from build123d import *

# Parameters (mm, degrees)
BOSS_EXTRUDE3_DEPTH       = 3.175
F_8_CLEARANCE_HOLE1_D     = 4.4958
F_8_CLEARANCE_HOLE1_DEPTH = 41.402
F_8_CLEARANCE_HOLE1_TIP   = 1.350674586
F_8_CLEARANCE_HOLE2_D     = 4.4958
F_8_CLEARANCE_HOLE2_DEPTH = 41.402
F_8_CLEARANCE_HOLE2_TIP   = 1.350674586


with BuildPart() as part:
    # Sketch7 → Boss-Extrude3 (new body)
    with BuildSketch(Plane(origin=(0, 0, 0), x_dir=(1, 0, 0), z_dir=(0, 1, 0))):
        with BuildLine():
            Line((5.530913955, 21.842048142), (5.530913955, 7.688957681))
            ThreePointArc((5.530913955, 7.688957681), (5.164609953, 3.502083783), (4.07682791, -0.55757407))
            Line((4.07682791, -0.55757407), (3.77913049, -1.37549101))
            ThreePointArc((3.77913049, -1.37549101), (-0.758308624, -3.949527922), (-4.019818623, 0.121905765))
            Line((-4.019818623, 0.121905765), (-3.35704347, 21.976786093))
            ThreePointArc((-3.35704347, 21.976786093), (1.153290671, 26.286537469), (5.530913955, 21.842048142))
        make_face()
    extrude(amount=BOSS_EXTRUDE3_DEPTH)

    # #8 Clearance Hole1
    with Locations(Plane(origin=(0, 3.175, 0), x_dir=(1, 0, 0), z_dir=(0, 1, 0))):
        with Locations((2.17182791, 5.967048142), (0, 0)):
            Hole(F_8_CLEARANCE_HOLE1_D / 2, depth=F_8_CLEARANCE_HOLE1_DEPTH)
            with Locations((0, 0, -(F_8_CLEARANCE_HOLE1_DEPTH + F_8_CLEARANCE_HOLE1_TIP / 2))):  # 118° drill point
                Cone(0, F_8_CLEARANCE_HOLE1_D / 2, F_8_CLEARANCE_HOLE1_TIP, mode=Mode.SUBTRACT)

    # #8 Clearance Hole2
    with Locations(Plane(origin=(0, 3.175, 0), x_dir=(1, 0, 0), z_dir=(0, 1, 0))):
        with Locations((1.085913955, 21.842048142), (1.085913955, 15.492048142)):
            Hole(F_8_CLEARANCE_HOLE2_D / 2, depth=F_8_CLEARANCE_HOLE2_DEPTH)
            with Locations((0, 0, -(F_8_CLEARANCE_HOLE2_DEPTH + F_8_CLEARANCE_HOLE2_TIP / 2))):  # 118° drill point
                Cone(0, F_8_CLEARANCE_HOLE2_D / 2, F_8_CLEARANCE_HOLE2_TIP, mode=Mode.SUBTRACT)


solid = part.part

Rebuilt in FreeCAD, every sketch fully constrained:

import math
import FreeCAD as App
import Part
import Sketcher

V = App.Vector
Q = App.Units.Quantity

doc = App.newDocument("Part")
body = doc.addObject("PartDesign::Body", "Body")

sketch1 = doc.addObject("Sketcher::SketchObject", "Sketch")
body.addObject(sketch1)
sketch1.AttachmentSupport = (doc.XZ_Plane, [""])
sketch1.MapMode = "FlatFace"
sketch1.addGeometry(Part.LineSegment(V(5.530914, -7.688958, 0), V(5.530914, -21.842048, 0)), False)
sketch1.addGeometry(Part.ArcOfCircle(Part.Circle(V(1.085914, -21.842048, 0), V(0, 0, 1), 4.445), math.radians(-178.26297), math.radians(0)), False)
sketch1.addGeometry(Part.LineSegment(V(-3.357043, -21.976786, 0), V(-4.019819, -0.121906, 0)), False)
sketch1.addGeometry(Part.ArcOfCircle(Part.Circle(V(0, 0, 0), V(0, 0, 1), 4.021667), math.radians(20), math.radians(181.73703)), False)
sketch1.addGeometry(Part.LineSegment(V(3.77913, 1.375491, 0), V(4.076828, 0.557574, 0)), False)
sketch1.addGeometry(Part.ArcOfCircle(Part.Circle(V(-18.580332, -7.688958, 0), V(0, 0, 1), 24.111246), math.radians(0), math.radians(20)), False)
sketch1.addConstraint(Sketcher.Constraint("Tangent", 0, 2, 1, 2))
sketch1.addConstraint(Sketcher.Constraint("Tangent", 1, 1, 2, 1))
sketch1.addConstraint(Sketcher.Constraint("Tangent", 2, 2, 3, 2))
sketch1.addConstraint(Sketcher.Constraint("Tangent", 3, 1, 4, 1))
sketch1.addConstraint(Sketcher.Constraint("Tangent", 4, 2, 5, 2))
sketch1.addConstraint(Sketcher.Constraint("Tangent", 5, 1, 0, 1))
sketch1.addConstraint(Sketcher.Constraint("Vertical", 0))
sketch1.addConstraint(Sketcher.Constraint("Coincident", 3, 3, -1, 1))
sketch1.addConstraint(Sketcher.Constraint("Angle", 4, Q("-70 deg")))
sketch1.addConstraint(Sketcher.Constraint("Radius", 1, Q("0.175 in")))
sketch1.addConstraint(Sketcher.Constraint("Radius", 3, Q("4.021667 mm")))
sketch1.addConstraint(Sketcher.Constraint("Radius", 5, Q("24.111246 mm")))
sketch1.addConstraint(Sketcher.Constraint("DistanceY", 0, 2, 0, 1, Q("14.15309 mm")))
sketch1.addConstraint(Sketcher.Constraint("Distance", 4, Q("0.870409 mm")))
pad1 = doc.addObject("PartDesign::Pad", "Pad")
body.addObject(pad1)
pad1.Profile = sketch1
pad1.Length = Q("0.125 in")
pad1.Reversed = True

sketch2 = doc.addObject("Sketcher::SketchObject", "Sketch001")
body.addObject(sketch2)
sketch2.AttachmentSupport = (doc.XZ_Plane, [""])
sketch2.MapMode = "FlatFace"
sketch2.AttachmentOffset = App.Placement(V(0, 0, -0.125 * 25.4), App.Rotation())
sketch2.addGeometry(Part.Circle(V(2.171828, -5.967048, 0), V(0, 0, 1), 2.2479), False)
sketch2.addGeometry(Part.Circle(V(0, 0, 0), V(0, 0, 1), 2.2479), False)
sketch2.addConstraint(Sketcher.Constraint("Coincident", 1, 3, -1, 1))
sketch2.addConstraint(Sketcher.Constraint("Equal", 0, 1))
sketch2.addConstraint(Sketcher.Constraint("Diameter", 0, Q("0.177 in")))
sketch2.addConstraint(Sketcher.Constraint("DistanceY", 0, 3, -1, 1, Q("5.967048 mm")))
sketch2.addConstraint(Sketcher.Constraint("DistanceX", -1, 1, 0, 3, Q("2.171828 mm")))
doc.recompute()
hole = doc.addObject("PartDesign::Hole", "Hole")
body.addObject(hole)
hole.Profile = sketch2
hole.ThreadType = "None"
hole.Diameter = Q("0.177 in")
hole.DepthType = "Dimension"
hole.Depth = Q("1.63 in")
hole.DrillPoint = "Angled"
hole.DrillPointAngle = 118
hole.Reversed = True

sketch3 = doc.addObject("Sketcher::SketchObject", "Sketch002")
body.addObject(sketch3)
sketch3.AttachmentSupport = (doc.XZ_Plane, [""])
sketch3.MapMode = "FlatFace"
sketch3.AttachmentOffset = App.Placement(V(0, 0, -0.125 * 25.4), App.Rotation())
sketch3.addGeometry(Part.Circle(V(1.085914, -21.842048, 0), V(0, 0, 1), 2.2479), False)
sketch3.addGeometry(Part.Circle(V(1.085914, -15.492048, 0), V(0, 0, 1), 2.2479), False)
sketch3.addConstraint(Sketcher.Constraint("Equal", 0, 1))
sketch3.addConstraint(Sketcher.Constraint("Vertical", 0, 3, 1, 3))
sketch3.addConstraint(Sketcher.Constraint("Diameter", 0, Q("0.177 in")))
sketch3.addConstraint(Sketcher.Constraint("DistanceY", 0, 3, 1, 3, Q("0.25 in")))
sketch3.addConstraint(Sketcher.Constraint("DistanceY", 0, 3, -1, 1, Q("21.842048 mm")))
sketch3.addConstraint(Sketcher.Constraint("DistanceX", -1, 1, 0, 3, Q("1.085914 mm")))
doc.recompute()
hole2 = doc.addObject("PartDesign::Hole", "Hole001")
body.addObject(hole2)
hole2.Profile = sketch3
hole2.ThreadType = "None"
hole2.Diameter = Q("0.177 in")
hole2.DepthType = "Dimension"
hole2.Depth = Q("1.63 in")
hole2.DrillPoint = "Angled"
hole2.DrillPointAngle = 118
hole2.Reversed = True

doc.recompute()
